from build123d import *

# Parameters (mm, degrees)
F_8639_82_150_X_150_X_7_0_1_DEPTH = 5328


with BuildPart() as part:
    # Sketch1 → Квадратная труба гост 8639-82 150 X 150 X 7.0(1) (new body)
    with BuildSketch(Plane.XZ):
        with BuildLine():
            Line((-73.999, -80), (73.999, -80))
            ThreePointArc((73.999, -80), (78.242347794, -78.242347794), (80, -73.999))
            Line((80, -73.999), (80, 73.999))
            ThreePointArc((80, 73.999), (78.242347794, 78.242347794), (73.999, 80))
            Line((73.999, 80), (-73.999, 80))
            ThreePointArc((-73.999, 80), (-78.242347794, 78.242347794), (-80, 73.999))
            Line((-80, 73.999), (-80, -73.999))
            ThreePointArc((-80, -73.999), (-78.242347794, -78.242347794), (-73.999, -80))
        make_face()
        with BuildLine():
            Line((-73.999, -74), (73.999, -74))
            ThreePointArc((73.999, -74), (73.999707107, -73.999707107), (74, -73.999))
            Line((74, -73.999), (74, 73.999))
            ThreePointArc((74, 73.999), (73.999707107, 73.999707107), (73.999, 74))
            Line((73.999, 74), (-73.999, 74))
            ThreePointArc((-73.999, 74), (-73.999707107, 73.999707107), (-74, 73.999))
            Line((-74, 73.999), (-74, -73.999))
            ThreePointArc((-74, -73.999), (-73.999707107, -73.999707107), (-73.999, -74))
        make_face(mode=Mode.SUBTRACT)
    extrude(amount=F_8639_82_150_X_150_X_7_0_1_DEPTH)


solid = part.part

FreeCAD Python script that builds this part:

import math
import FreeCAD as App
import Part
import Sketcher
from FreeCAD import Vector

doc = App.newDocument("Part")
body = doc.addObject("PartDesign::Body", "Body")

# Sketch on XZ plane
sketch1 = body.newObject("Sketcher::SketchObject", "Sketch")
sketch1.AttachmentSupport = (doc.getObject("XZ_Plane"), [""])
sketch1.MapMode = "FlatFace"
sketch1.addGeometry([
    Part.LineSegment(Vector(-73.999, -80, 0), Vector(73.999, -80, 0)),  # 0
    Part.ArcOfCircle(Part.Circle(Vector(73.999, -73.999, 0), Vector(0, 0, 1), 6.001), math.radians(-90), math.radians(0)),  # 1
    Part.LineSegment(Vector(80, -73.999, 0), Vector(80, 73.999, 0)),  # 2
    Part.ArcOfCircle(Part.Circle(Vector(73.999, 73.999, 0), Vector(0, 0, 1), 6.001), math.radians(0), math.radians(90)),  # 3
    Part.LineSegment(Vector(73.999, 80, 0), Vector(-73.999, 80, 0)),  # 4
    Part.ArcOfCircle(Part.Circle(Vector(-73.999, 73.999, 0), Vector(0, 0, 1), 6.001), math.radians(90), math.radians(180)),  # 5
    Part.LineSegment(Vector(-80, 73.999, 0), Vector(-80, -73.999, 0)),  # 6
    Part.ArcOfCircle(Part.Circle(Vector(-73.999, -73.999, 0), Vector(0, 0, 1), 6.001), math.radians(180), math.radians(270)),  # 7
    Part.LineSegment(Vector(73.999, -74, 0), Vector(-73.999, -74, 0)),  # 8
    Part.ArcOfCircle(Part.Circle(Vector(-73.999, -73.999, 0), Vector(0, 0, 1), 0.001), math.radians(180), math.radians(270)),  # 9
    Part.LineSegment(Vector(-74, -73.999, 0), Vector(-74, 73.999, 0)),  # 10
    Part.ArcOfCircle(Part.Circle(Vector(-73.999, 73.999, 0), Vector(0, 0, 1), 0.001), math.radians(90), math.radians(180)),  # 11
    Part.LineSegment(Vector(-73.999, 74, 0), Vector(73.999, 74, 0)),  # 12
    Part.ArcOfCircle(Part.Circle(Vector(73.999, 73.999, 0), Vector(0, 0, 1), 0.001), math.radians(0), math.radians(90)),  # 13
    Part.LineSegment(Vector(74, 73.999, 0), Vector(74, -73.999, 0)),  # 14
    Part.ArcOfCircle(Part.Circle(Vector(73.999, -73.999, 0), Vector(0, 0, 1), 0.001), math.radians(-90), math.radians(0)),  # 15
], False)
sketch1.addConstraint([
    Sketcher.Constraint("Tangent", 0, 2, 1, 1),
    Sketcher.Constraint("Tangent", 1, 2, 2, 1),
    Sketcher.Constraint("Tangent", 2, 2, 3, 1),
    Sketcher.Constraint("Tangent", 3, 2, 4, 1),
    Sketcher.Constraint("Tangent", 4, 2, 5, 1),
    Sketcher.Constraint("Tangent", 5, 2, 6, 1),
    Sketcher.Constraint("Tangent", 6, 2, 7, 1),
    Sketcher.Constraint("Tangent", 7, 2, 0, 1),
    Sketcher.Constraint("Tangent", 8, 2, 9, 2),
    Sketcher.Constraint("Tangent", 9, 1, 10, 1),
    Sketcher.Constraint("Tangent", 10, 2, 11, 2),
    Sketcher.Constraint("Tangent", 11, 1, 12, 1),
    Sketcher.Constraint("Tangent", 12, 2, 13, 2),
    Sketcher.Constraint("Tangent", 13, 1, 14, 1),
    Sketcher.Constraint("Tangent", 14, 2, 15, 2),
    Sketcher.Constraint("Tangent", 15, 1, 8, 1),
    Sketcher.Constraint("Horizontal", 0),
    Sketcher.Constraint("Vertical", 2),
    Sketcher.Constraint("Horizontal", 4),
    Sketcher.Constraint("Vertical", 6),
    Sketcher.Constraint("Horizontal", 8),
    Sketcher.Constraint("Vertical", 10),
    Sketcher.Constraint("Horizontal", 12),
    Sketcher.Constraint("Vertical", 14),
    Sketcher.Constraint("Coincident", 9, 3, 7, 3),
    Sketcher.Constraint("Coincident", 11, 3, 5, 3),
    Sketcher.Constraint("Coincident", 13, 3, 3, 3),
    Sketcher.Constraint("Equal", 1, 3),
    Sketcher.Constraint("Equal", 3, 5),
    Sketcher.Constraint("Equal", 5, 7),
    Sketcher.Constraint("Equal", 13, 15),
    Sketcher.Constraint("Symmetric", 1, 3, 5, 3, -1, 1),
    Sketcher.Constraint("Equal", 12, 2),
    Sketcher.Constraint("DistanceY", 0, 2, -1, 1, 80.0),
    Sketcher.Constraint("DistanceY", 8, 2, -1, 1, 74.0),
    Sketcher.Constraint("Radius", 1, 6.001),
])
pad1 = body.newObject("PartDesign::Pad", "Pad")
pad1.Profile = sketch1
pad1.Length = 5328

doc.recompute()
